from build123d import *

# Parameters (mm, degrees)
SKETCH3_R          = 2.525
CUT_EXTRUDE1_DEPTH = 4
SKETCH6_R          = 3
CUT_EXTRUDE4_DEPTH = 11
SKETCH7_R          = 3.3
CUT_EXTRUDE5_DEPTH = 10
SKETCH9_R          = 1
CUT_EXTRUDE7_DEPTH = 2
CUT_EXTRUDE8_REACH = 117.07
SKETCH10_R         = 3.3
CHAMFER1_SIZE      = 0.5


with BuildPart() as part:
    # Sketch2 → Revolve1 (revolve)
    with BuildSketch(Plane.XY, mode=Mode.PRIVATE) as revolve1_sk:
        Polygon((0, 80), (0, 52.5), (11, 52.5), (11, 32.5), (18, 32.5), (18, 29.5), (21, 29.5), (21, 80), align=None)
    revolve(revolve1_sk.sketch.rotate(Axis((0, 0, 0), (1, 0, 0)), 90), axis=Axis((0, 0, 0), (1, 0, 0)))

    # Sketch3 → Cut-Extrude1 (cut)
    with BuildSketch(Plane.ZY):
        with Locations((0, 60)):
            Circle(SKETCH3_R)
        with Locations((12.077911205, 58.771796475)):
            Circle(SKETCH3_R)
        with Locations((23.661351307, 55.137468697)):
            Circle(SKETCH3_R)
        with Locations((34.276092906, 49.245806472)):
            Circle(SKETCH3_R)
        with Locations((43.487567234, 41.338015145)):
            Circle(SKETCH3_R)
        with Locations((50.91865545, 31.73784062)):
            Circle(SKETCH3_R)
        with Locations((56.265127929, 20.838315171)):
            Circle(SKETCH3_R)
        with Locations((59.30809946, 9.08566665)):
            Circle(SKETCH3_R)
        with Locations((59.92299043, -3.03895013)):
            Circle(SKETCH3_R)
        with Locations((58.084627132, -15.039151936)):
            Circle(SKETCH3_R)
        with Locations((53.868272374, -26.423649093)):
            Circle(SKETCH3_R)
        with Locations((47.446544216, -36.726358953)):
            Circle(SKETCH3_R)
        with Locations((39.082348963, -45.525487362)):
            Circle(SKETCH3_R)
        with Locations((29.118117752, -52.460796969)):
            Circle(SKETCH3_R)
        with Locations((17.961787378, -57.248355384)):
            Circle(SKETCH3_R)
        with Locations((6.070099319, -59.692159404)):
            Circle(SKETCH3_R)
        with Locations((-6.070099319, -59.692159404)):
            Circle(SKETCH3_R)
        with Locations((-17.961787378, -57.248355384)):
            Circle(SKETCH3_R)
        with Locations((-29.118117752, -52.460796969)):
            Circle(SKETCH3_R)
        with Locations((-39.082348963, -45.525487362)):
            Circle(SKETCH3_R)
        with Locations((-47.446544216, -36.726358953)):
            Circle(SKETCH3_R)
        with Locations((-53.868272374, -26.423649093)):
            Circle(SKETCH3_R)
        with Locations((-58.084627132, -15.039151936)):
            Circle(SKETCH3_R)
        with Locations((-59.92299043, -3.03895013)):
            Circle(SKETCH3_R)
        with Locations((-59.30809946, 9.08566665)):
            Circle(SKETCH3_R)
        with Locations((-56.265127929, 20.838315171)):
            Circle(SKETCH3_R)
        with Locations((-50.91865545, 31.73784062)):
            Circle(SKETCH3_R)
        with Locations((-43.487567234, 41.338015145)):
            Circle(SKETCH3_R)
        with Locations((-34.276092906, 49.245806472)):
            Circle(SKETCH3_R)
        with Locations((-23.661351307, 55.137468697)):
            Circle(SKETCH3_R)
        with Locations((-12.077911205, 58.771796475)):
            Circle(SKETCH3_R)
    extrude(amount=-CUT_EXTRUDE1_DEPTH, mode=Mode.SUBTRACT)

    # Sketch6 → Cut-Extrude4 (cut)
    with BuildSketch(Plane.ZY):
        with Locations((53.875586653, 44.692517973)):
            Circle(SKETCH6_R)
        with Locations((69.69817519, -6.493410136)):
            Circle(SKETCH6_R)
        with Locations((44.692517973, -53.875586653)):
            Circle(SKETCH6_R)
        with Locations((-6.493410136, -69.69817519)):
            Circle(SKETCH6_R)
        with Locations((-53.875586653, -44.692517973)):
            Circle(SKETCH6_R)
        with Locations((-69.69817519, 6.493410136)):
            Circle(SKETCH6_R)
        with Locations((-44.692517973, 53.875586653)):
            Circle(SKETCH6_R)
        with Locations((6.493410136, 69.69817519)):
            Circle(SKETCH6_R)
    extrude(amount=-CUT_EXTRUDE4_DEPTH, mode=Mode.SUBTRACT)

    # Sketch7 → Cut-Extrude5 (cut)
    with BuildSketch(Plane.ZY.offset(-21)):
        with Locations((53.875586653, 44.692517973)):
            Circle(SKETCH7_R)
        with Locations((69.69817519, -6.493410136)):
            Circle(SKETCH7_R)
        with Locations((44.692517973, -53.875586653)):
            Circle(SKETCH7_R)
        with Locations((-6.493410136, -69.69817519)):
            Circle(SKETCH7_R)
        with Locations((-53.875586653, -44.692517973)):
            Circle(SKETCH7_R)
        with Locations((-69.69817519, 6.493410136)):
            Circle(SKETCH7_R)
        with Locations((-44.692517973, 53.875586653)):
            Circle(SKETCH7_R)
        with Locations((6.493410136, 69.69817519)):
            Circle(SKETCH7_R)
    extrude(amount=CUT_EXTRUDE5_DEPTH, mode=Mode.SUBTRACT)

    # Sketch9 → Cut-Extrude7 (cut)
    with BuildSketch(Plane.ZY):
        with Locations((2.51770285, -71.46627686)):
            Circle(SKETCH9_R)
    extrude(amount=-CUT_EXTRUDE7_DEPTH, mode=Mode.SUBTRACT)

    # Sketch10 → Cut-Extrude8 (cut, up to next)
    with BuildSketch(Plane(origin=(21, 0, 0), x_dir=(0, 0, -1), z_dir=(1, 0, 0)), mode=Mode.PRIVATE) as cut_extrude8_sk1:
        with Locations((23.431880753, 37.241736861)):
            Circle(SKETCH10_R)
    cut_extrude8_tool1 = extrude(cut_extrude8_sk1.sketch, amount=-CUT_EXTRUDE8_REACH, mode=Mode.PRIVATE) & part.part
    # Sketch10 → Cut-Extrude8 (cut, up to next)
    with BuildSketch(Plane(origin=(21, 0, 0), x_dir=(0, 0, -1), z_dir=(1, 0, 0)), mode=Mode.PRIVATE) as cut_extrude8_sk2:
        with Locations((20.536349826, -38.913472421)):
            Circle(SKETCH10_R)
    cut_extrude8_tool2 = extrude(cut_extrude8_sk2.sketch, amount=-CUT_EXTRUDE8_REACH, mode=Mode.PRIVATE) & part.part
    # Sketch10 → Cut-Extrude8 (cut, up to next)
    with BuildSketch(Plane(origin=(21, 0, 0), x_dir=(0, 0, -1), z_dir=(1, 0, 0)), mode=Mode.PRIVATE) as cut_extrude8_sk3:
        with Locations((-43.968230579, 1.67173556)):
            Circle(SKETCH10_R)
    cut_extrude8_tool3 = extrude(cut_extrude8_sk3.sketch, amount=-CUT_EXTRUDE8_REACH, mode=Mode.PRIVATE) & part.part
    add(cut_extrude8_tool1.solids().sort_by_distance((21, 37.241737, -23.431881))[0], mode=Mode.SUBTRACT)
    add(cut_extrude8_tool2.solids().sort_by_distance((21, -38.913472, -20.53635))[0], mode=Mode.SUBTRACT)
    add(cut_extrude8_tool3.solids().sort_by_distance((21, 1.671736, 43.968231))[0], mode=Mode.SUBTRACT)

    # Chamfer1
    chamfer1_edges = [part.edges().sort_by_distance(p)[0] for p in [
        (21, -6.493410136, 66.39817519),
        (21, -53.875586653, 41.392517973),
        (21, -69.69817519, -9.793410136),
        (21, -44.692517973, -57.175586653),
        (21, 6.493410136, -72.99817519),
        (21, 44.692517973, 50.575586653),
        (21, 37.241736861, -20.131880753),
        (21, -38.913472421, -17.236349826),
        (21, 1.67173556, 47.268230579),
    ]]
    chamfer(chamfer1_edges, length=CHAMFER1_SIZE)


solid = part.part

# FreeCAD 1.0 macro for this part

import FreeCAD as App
import Part
import Sketcher


def edges_at(feature, points):
    """Names of the edges that pass closest to the given points."""
    edges = feature.Shape.Edges
    near = lambda p: min(range(len(edges)), key=lambda i: edges[i].distToShape(Part.Vertex(*p))[0])
    return sorted({f"Edge{near(p) + 1}" for p in points})

doc = App.newDocument("Part")
body = doc.addObject("PartDesign::Body", "Body")

sketch1 = body.newObject("Sketcher::SketchObject", "Sketch")
sketch1.AttachmentSupport = (doc.getObject("XY_Plane"), [""])
sketch1.MapMode = "FlatFace"
sketch1.addGeometry([
    Part.LineSegment(App.Vector(0, 80, 0), App.Vector(0, 52.5, 0)),
    Part.LineSegment(App.Vector(0, 52.5, 0), App.Vector(11, 52.5, 0)),
    Part.LineSegment(App.Vector(11, 52.5, 0), App.Vector(11, 32.5, 0)),
    Part.LineSegment(App.Vector(11, 32.5, 0), App.Vector(18, 32.5, 0)),
    Part.LineSegment(App.Vector(18, 32.5, 0), App.Vector(18, 29.5, 0)),
    Part.LineSegment(App.Vector(18, 29.5, 0), App.Vector(21, 29.5, 0)),
    Part.LineSegment(App.Vector(21, 29.5, 0), App.Vector(21, 80, 0)),
    Part.LineSegment(App.Vector(21, 80, 0), App.Vector(0, 80, 0)),
], False)
sketch1.addConstraint([
    Sketcher.Constraint("Coincident", 0, 2, 1, 1),
    Sketcher.Constraint("Coincident", 1, 2, 2, 1),
    Sketcher.Constraint("Coincident", 2, 2, 3, 1),
    Sketcher.Constraint("Coincident", 3, 2, 4, 1),
    Sketcher.Constraint("Coincident", 4, 2, 5, 1),
    Sketcher.Constraint("Coincident", 5, 2, 6, 1),
    Sketcher.Constraint("Coincident", 6, 2, 7, 1),
    Sketcher.Constraint("Coincident", 7, 2, 0, 1),
    Sketcher.Constraint("Vertical", 0),
    Sketcher.Constraint("Horizontal", 1),
    Sketcher.Constraint("Vertical", 2),
    Sketcher.Constraint("Horizontal", 3),
    Sketcher.Constraint("Vertical", 4),
    Sketcher.Constraint("Horizontal", 5),
    Sketcher.Constraint("Vertical", 6),
    Sketcher.Constraint("Horizontal", 7),
    Sketcher.Constraint("PointOnObject", 0, 2, -2),
    Sketcher.Constraint("Equal", 5, 4),
    Sketcher.Constraint("DistanceX", 1, 1, 1, 2, 11.0),
    Sketcher.Constraint("DistanceX", 3, 1, 3, 2, 7.0),
    Sketcher.Constraint("DistanceX", 5, 1, 5, 2, 3.0),
    Sketcher.Constraint("DistanceY", 2, 2, 2, 1, 20.0),
    Sketcher.Constraint("DistanceY", 0, 2, 0, 1, 27.5),
    Sketcher.Constraint("DistanceY", -1, 1, 6, 2, 80.0),
])
revolution = body.newObject("PartDesign::Revolution", "Revolution")
revolution.Profile = sketch1
revolution.ReferenceAxis = (sketch1, ["H_Axis"])
revolution.Angle = 360

sketch2 = body.newObject("Sketcher::SketchObject", "Sketch001")
sketch2.AttachmentSupport = (doc.getObject("YZ_Plane"), [""])
sketch2.MapMode = "FlatFace"
sketch2.addGeometry([
    Part.Circle(App.Vector(60, 0, 0), App.Vector(0, 0, 1), 2.525),
    Part.Circle(App.Vector(58.771796, 12.077911, 0), App.Vector(0, 0, 1), 2.525),
    Part.Circle(App.Vector(55.137469, 23.661351, 0), App.Vector(0, 0, 1), 2.525),
    Part.Circle(App.Vector(49.245806, 34.276093, 0), App.Vector(0, 0, 1), 2.525),
    Part.Circle(App.Vector(41.338015, 43.487567, 0), App.Vector(0, 0, 1), 2.525),
    Part.Circle(App.Vector(31.737841, 50.918655, 0), App.Vector(0, 0, 1), 2.525),
    Part.Circle(App.Vector(20.838315, 56.265128, 0), App.Vector(0, 0, 1), 2.525),
    Part.Circle(App.Vector(9.085667, 59.308099, 0), App.Vector(0, 0, 1), 2.525),
    Part.Circle(App.Vector(-3.03895, 59.92299, 0), App.Vector(0, 0, 1), 2.525),
    Part.Circle(App.Vector(-15.039152, 58.084627, 0), App.Vector(0, 0, 1), 2.525),
    Part.Circle(App.Vector(-26.423649, 53.868272, 0), App.Vector(0, 0, 1), 2.525),
    Part.Circle(App.Vector(-36.726359, 47.446544, 0), App.Vector(0, 0, 1), 2.525),
    Part.Circle(App.Vector(-45.525487, 39.082349, 0), App.Vector(0, 0, 1), 2.525),
    Part.Circle(App.Vector(-52.460797, 29.118118, 0), App.Vector(0, 0, 1), 2.525),
    Part.Circle(App.Vector(-57.248355, 17.961787, 0), App.Vector(0, 0, 1), 2.525),
    Part.Circle(App.Vector(-59.692159, 6.070099, 0), App.Vector(0, 0, 1), 2.525),
    Part.Circle(App.Vector(-59.692159, -6.070099, 0), App.Vector(0, 0, 1), 2.525),
    Part.Circle(App.Vector(-57.248355, -17.961787, 0), App.Vector(0, 0, 1), 2.525),
    Part.Circle(App.Vector(-52.460797, -29.118118, 0), App.Vector(0, 0, 1), 2.525),
    Part.Circle(App.Vector(-45.525487, -39.082349, 0), App.Vector(0, 0, 1), 2.525),
    Part.Circle(App.Vector(-36.726359, -47.446544, 0), App.Vector(0, 0, 1), 2.525),
    Part.Circle(App.Vector(-26.423649, -53.868272, 0), App.Vector(0, 0, 1), 2.525),
    Part.Circle(App.Vector(-15.039152, -58.084627, 0), App.Vector(0, 0, 1), 2.525),
    Part.Circle(App.Vector(-3.03895, -59.92299, 0), App.Vector(0, 0, 1), 2.525),
    Part.Circle(App.Vector(9.085667, -59.308099, 0), App.Vector(0, 0, 1), 2.525),
    Part.Circle(App.Vector(20.838315, -56.265128, 0), App.Vector(0, 0, 1), 2.525),
    Part.Circle(App.Vector(31.737841, -50.918655, 0), App.Vector(0, 0, 1), 2.525),
    Part.Circle(App.Vector(41.338015, -43.487567, 0), App.Vector(0, 0, 1), 2.525),
    Part.Circle(App.Vector(49.245806, -34.276093, 0), App.Vector(0, 0, 1), 2.525),
    Part.Circle(App.Vector(55.137469, -23.661351, 0), App.Vector(0, 0, 1), 2.525),
    Part.Circle(App.Vector(58.771796, -12.077911, 0), App.Vector(0, 0, 1), 2.525),
], False)
sketch2.addConstraint([
    Sketcher.Constraint("Equal", 0, 1),
    Sketcher.Constraint("Equal", 1, 2),
    Sketcher.Constraint("Equal", 2, 3),
    Sketcher.Constraint("Equal", 3, 4),
    Sketcher.Constraint("Equal", 4, 5),
    Sketcher.Constraint("Equal", 5, 6),
    Sketcher.Constraint("Equal", 6, 7),
    Sketcher.Constraint("Equal", 7, 8),
    Sketcher.Constraint("Equal", 8, 9),
    Sketcher.Constraint("Equal", 9, 10),
    Sketcher.Constraint("Equal", 10, 11),
    Sketcher.Constraint("Equal", 11, 12),
    Sketcher.Constraint("Equal", 12, 13),
    Sketcher.Constraint("Equal", 13, 14),
    Sketcher.Constraint("Equal", 14, 15),
    Sketcher.Constraint("Equal", 15, 16),
    Sketcher.Constraint("Equal", 16, 17),
    Sketcher.Constraint("Equal", 17, 18),
    Sketcher.Constraint("Equal", 18, 19),
    Sketcher.Constraint("Equal", 19, 20),
    Sketcher.Constraint("Equal", 20, 21),
    Sketcher.Constraint("Equal", 21, 22),
    Sketcher.Constraint("Equal", 22, 23),
    Sketcher.Constraint("Equal", 23, 24),
    Sketcher.Constraint("Equal", 24, 25),
    Sketcher.Constraint("Equal", 25, 26),
    Sketcher.Constraint("Equal", 26, 27),
    Sketcher.Constraint("Equal", 27, 28),
    Sketcher.Constraint("Equal", 28, 29),
    Sketcher.Constraint("Equal", 29, 30),
    Sketcher.Constraint("Symmetric", 15, 3, 16, 3, -1),
    Sketcher.Constraint("Symmetric", 14, 3, 17, 3, -1),
    Sketcher.Constraint("Symmetric", 13, 3, 18, 3, -1),
    Sketcher.Constraint("Symmetric", 12, 3, 19, 3, -1),
    Sketcher.Constraint("Symmetric", 11, 3, 20, 3, -1),
    Sketcher.Constraint("Symmetric", 10, 3, 21, 3, -1),
    Sketcher.Constraint("Symmetric", 9, 3, 22, 3, -1),
    Sketcher.Constraint("Symmetric", 8, 3, 23, 3, -1),
    Sketcher.Constraint("Symmetric", 7, 3, 24, 3, -1),
    Sketcher.Constraint("Symmetric", 6, 3, 25, 3, -1),
    Sketcher.Constraint("Symmetric", 5, 3, 26, 3, -1),
    Sketcher.Constraint("Symmetric", 4, 3, 27, 3, -1),
    Sketcher.Constraint("Symmetric", 3, 3, 28, 3, -1),
    Sketcher.Constraint("Symmetric", 2, 3, 29, 3, -1),
    Sketcher.Constraint("Symmetric", 1, 3, 30, 3, -1),
    Sketcher.Constraint("PointOnObject", 0, 3, -1),
    Sketcher.Constraint("Diameter", 0, 5.05),
    Sketcher.Constraint("DistanceX", -1, 1, 0, 3, 60.0),
    Sketcher.Constraint("DistanceY", -1, 1, 7, 3, 59.308099),
    Sketcher.Constraint("DistanceY", -1, 1, 15, 3, 6.070099),
    Sketcher.Constraint("DistanceX", 6, 3, 4, 3, 20.4997),
    Sketcher.Constraint("DistanceX", 9, 3, 8, 3, 12.000202),
    Sketcher.Constraint("DistanceY", 6, 3, 9, 3, 1.819499),
    Sketcher.Constraint("DistanceX", 10, 3, 8, 3, 23.384699),
    Sketcher.Constraint("DistanceX", 15, 3, 11, 3, 22.9658),
    Sketcher.Constraint("DistanceY", -1, 1, 1, 3, 12.077911),
    Sketcher.Constraint("DistanceX", -1, 1, 2, 3, 55.137469),
    Sketcher.Constraint("DistanceY", -1, 1, 2, 3, 23.661351),
    Sketcher.Constraint("DistanceX", -1, 1, 5, 3, 31.737841),
    Sketcher.Constraint("DistanceX", 8, 3, -1, 1, 3.03895),
    Sketcher.Constraint("DistanceY", -1, 1, 8, 3, 59.92299),
    Sketcher.Constraint("DistanceX", 11, 3, -1, 1, 36.726359),
    Sketcher.Constraint("DistanceY", -1, 1, 12, 3, 39.082349),
    Sketcher.Constraint("DistanceY", 2, 3, 3, 3, 10.614742),
    Sketcher.Constraint("DistanceX", 3, 3, 1, 3, 9.52599),
    Sketcher.Constraint("DistanceX", 4, 3, 3, 3, 7.907791),
    Sketcher.Constraint("DistanceY", 4, 3, 5, 3, 7.431088),
    Sketcher.Constraint("DistanceY", 4, 3, 6, 3, 12.777561),
    Sketcher.Constraint("DistanceX", 7, 3, 6, 3, 11.752649),
    Sketcher.Constraint("DistanceY", 6, 3, 7, 3, 3.042972),
    Sketcher.Constraint("DistanceX", 9, 3, 7, 3, 24.124819),
    Sketcher.Constraint("DistanceY", 10, 3, 8, 3, 6.054718),
    Sketcher.Constraint("DistanceY", 11, 3, 10, 3, 6.421728),
    Sketcher.Constraint("DistanceX", 12, 3, 11, 3, 8.799128),
    Sketcher.Constraint("DistanceX", 13, 3, 12, 3, 6.93531),
    Sketcher.Constraint("DistanceY", 13, 3, 12, 3, 9.964231),
    Sketcher.Constraint("DistanceX", 14, 3, 13, 3, 4.787558),
    Sketcher.Constraint("DistanceY", 14, 3, 13, 3, 11.15633),
])
pocket1 = body.newObject("PartDesign::Pocket", "Pocket")
pocket1.Profile = sketch2
pocket1.Length = 4
pocket1.Reversed = True

sketch3 = body.newObject("Sketcher::SketchObject", "Sketch002")
sketch3.AttachmentSupport = (doc.getObject("YZ_Plane"), [""])
sketch3.MapMode = "FlatFace"
sketch3.addGeometry([
    Part.Circle(App.Vector(44.692518, 53.875587, 0), App.Vector(0, 0, 1), 3),
    Part.Circle(App.Vector(-6.49341, 69.698175, 0), App.Vector(0, 0, 1), 3),
    Part.Circle(App.Vector(-53.875587, 44.692518, 0), App.Vector(0, 0, 1), 3),
    Part.Circle(App.Vector(-69.698175, -6.49341, 0), App.Vector(0, 0, 1), 3),
    Part.Circle(App.Vector(-44.692518, -53.875587, 0), App.Vector(0, 0, 1), 3),
    Part.Circle(App.Vector(6.49341, -69.698175, 0), App.Vector(0, 0, 1), 3),
    Part.Circle(App.Vector(53.875587, -44.692518, 0), App.Vector(0, 0, 1), 3),
    Part.Circle(App.Vector(69.698175, 6.49341, 0), App.Vector(0, 0, 1), 3),
], False)
sketch3.addConstraint([
    Sketcher.Constraint("Equal", 0, 1),
    Sketcher.Constraint("Equal", 1, 2),
    Sketcher.Constraint("Equal", 2, 3),
    Sketcher.Constraint("Equal", 3, 4),
    Sketcher.Constraint("Equal", 4, 5),
    Sketcher.Constraint("Equal", 5, 6),
    Sketcher.Constraint("Equal", 6, 7),
    Sketcher.Constraint("Symmetric", 0, 3, 4, 3, -1, 1),
    Sketcher.Constraint("Symmetric", 1, 3, 5, 3, -1, 1),
    Sketcher.Constraint("Symmetric", 2, 3, 6, 3, -1, 1),
    Sketcher.Constraint("Symmetric", 3, 3, 7, 3, -1, 1),
    Sketcher.Constraint("Diameter", 0, 6.0),
    Sketcher.Constraint("DistanceX", 1, 3, -1, 1, 6.49341),
    Sketcher.Constraint("DistanceY", 3, 3, -1, 1, 6.49341),
    Sketcher.Constraint("DistanceX", 1, 3, 0, 3, 51.185928),
    Sketcher.Constraint("DistanceY", 0, 3, 1, 3, 15.822589),
    Sketcher.Constraint("DistanceY", 2, 3, 0, 3, 9.183069),
    Sketcher.Constraint("DistanceX", 3, 3, 2, 3, 15.822589),
    Sketcher.Constraint("DistanceY", 3, 3, 2, 3, 51.185928),
    Sketcher.Constraint("DistanceX", 2, 3, 4, 3, 9.183069),
])
pocket2 = body.newObject("PartDesign::Pocket", "Pocket001")
pocket2.Profile = sketch3
pocket2.Length = 11
pocket2.Reversed = True

sketch4 = body.newObject("Sketcher::SketchObject", "Sketch003")
sketch4.AttachmentSupport = (doc.getObject("YZ_Plane"), [""])
sketch4.MapMode = "FlatFace"
sketch4.AttachmentOffset = App.Placement(App.Vector(0, 0, 21), App.Rotation())
sketch4.addGeometry([
    Part.Circle(App.Vector(44.692518, 53.875587, 0), App.Vector(0, 0, 1), 3.3),
    Part.Circle(App.Vector(-6.49341, 69.698175, 0), App.Vector(0, 0, 1), 3.3),
    Part.Circle(App.Vector(-53.875587, 44.692518, 0), App.Vector(0, 0, 1), 3.3),
    Part.Circle(App.Vector(-69.698175, -6.49341, 0), App.Vector(0, 0, 1), 3.3),
    Part.Circle(App.Vector(-44.692518, -53.875587, 0), App.Vector(0, 0, 1), 3.3),
    Part.Circle(App.Vector(6.49341, -69.698175, 0), App.Vector(0, 0, 1), 3.3),
    Part.Circle(App.Vector(53.875587, -44.692518, 0), App.Vector(0, 0, 1), 3.3),
    Part.Circle(App.Vector(69.698175, 6.49341, 0), App.Vector(0, 0, 1), 3.3),
], False)
sketch4.addConstraint([
    Sketcher.Constraint("Equal", 0, 1),
    Sketcher.Constraint("Equal", 1, 2),
    Sketcher.Constraint("Equal", 2, 3),
    Sketcher.Constraint("Equal", 3, 4),
    Sketcher.Constraint("Equal", 4, 5),
    Sketcher.Constraint("Equal", 5, 6),
    Sketcher.Constraint("Equal", 6, 7),
    Sketcher.Constraint("Symmetric", 0, 3, 4, 3, -1, 1),
    Sketcher.Constraint("Symmetric", 1, 3, 5, 3, -1, 1),
    Sketcher.Constraint("Symmetric", 2, 3, 6, 3, -1, 1),
    Sketcher.Constraint("Symmetric", 3, 3, 7, 3, -1, 1),
    Sketcher.Constraint("Diameter", 0, 6.6),
    Sketcher.Constraint("DistanceX", 1, 3, -1, 1, 6.49341),
    Sketcher.Constraint("DistanceY", 3, 3, -1, 1, 6.49341),
    Sketcher.Constraint("DistanceX", 1, 3, 0, 3, 51.185928),
    Sketcher.Constraint("DistanceY", 0, 3, 1, 3, 15.822589),
    Sketcher.Constraint("DistanceY", 2, 3, 0, 3, 9.183069),
    Sketcher.Constraint("DistanceX", 3, 3, 2, 3, 15.822589),
    Sketcher.Constraint("DistanceY", 3, 3, 2, 3, 51.185928),
    Sketcher.Constraint("DistanceX", 2, 3, 4, 3, 9.183069),
])
pocket3 = body.newObject("PartDesign::Pocket", "Pocket002")
pocket3.Profile = sketch4
pocket3.Length = 10

sketch5 = body.newObject("Sketcher::SketchObject", "Sketch004")
sketch5.AttachmentSupport = (doc.getObject("YZ_Plane"), [""])
sketch5.MapMode = "FlatFace"
sketch5.addGeometry(Part.Circle(App.Vector(-71.466277, 2.517703, 0), App.Vector(0, 0, 1), 1), False)
sketch5.addConstraint([
    Sketcher.Constraint("Diameter", 0, 2.0),
    Sketcher.Constraint("DistanceX", 0, 3, -1, 1, 71.466277),
    Sketcher.Constraint("DistanceY", -1, 1, 0, 3, 2.517703),
])
pocket4 = body.newObject("PartDesign::Pocket", "Pocket003")
pocket4.Profile = sketch5
pocket4.Length = 2
pocket4.Reversed = True

sketch6 = body.newObject("Sketcher::SketchObject", "Sketch005")
sketch6.AttachmentSupport = (doc.getObject("YZ_Plane"), [""])
sketch6.MapMode = "FlatFace"
sketch6.AttachmentOffset = App.Placement(App.Vector(0, 0, 21), App.Rotation())
sketch6.addGeometry(Part.Circle(App.Vector(37.241737, -23.431881, 0), App.Vector(0, 0, 1), 3.3), False)
sketch6.addConstraint([
    Sketcher.Constraint("Diameter", 0, 6.6),
    Sketcher.Constraint("DistanceY", 0, 3, -1, 1, 23.431881),
    Sketcher.Constraint("DistanceX", -1, 1, 0, 3, 37.241737),
])
pocket5 = body.newObject("PartDesign::Pocket", "Pocket004")
pocket5.Profile = sketch6
pocket5.Type = "UpToFirst"

sketch7 = body.newObject("Sketcher::SketchObject", "Sketch006")
sketch7.AttachmentSupport = (doc.getObject("YZ_Plane"), [""])
sketch7.MapMode = "FlatFace"
sketch7.AttachmentOffset = App.Placement(App.Vector(0, 0, 21), App.Rotation())
sketch7.addGeometry(Part.Circle(App.Vector(-38.913472, -20.53635, 0), App.Vector(0, 0, 1), 3.3), False)
sketch7.addConstraint([
    Sketcher.Constraint("Diameter", 0, 6.6),
    Sketcher.Constraint("DistanceY", 0, 3, -1, 1, 20.53635),
    Sketcher.Constraint("DistanceX", 0, 3, -1, 1, 38.913472),
])
pocket6 = body.newObject("PartDesign::Pocket", "Pocket005")
pocket6.Profile = sketch7
pocket6.Type = "UpToFirst"

sketch8 = body.newObject("Sketcher::SketchObject", "Sketch007")
sketch8.AttachmentSupport = (doc.getObject("YZ_Plane"), [""])
sketch8.MapMode = "FlatFace"
sketch8.AttachmentOffset = App.Placement(App.Vector(0, 0, 21), App.Rotation())
sketch8.addGeometry(Part.Circle(App.Vector(1.671736, 43.968231, 0), App.Vector(0, 0, 1), 3.3), False)
sketch8.addConstraint([
    Sketcher.Constraint("Diameter", 0, 6.6),
    Sketcher.Constraint("DistanceY", -1, 1, 0, 3, 43.968231),
    Sketcher.Constraint("DistanceX", -1, 1, 0, 3, 1.671736),
])
pocket7 = body.newObject("PartDesign::Pocket", "Pocket006")
pocket7.Profile = sketch8
pocket7.Type = "UpToFirst"
doc.recompute()

chamfer = body.newObject("PartDesign::Chamfer", "Chamfer")
chamfer.Base = (pocket7, edges_at(pocket7, [
    (21, -6.493, 66.398),
    (21, -53.876, 41.393),
    (21, -69.698, -9.793),
    (21, -44.693, -57.176),
    (21, 6.493, -72.998),
    (21, 44.693, 50.576),
    (21, 37.242, -20.132),
    (21, -38.913, -17.236),
    (21, 1.672, 47.268),
]))
chamfer.Size = 0.5

doc.recompute()
